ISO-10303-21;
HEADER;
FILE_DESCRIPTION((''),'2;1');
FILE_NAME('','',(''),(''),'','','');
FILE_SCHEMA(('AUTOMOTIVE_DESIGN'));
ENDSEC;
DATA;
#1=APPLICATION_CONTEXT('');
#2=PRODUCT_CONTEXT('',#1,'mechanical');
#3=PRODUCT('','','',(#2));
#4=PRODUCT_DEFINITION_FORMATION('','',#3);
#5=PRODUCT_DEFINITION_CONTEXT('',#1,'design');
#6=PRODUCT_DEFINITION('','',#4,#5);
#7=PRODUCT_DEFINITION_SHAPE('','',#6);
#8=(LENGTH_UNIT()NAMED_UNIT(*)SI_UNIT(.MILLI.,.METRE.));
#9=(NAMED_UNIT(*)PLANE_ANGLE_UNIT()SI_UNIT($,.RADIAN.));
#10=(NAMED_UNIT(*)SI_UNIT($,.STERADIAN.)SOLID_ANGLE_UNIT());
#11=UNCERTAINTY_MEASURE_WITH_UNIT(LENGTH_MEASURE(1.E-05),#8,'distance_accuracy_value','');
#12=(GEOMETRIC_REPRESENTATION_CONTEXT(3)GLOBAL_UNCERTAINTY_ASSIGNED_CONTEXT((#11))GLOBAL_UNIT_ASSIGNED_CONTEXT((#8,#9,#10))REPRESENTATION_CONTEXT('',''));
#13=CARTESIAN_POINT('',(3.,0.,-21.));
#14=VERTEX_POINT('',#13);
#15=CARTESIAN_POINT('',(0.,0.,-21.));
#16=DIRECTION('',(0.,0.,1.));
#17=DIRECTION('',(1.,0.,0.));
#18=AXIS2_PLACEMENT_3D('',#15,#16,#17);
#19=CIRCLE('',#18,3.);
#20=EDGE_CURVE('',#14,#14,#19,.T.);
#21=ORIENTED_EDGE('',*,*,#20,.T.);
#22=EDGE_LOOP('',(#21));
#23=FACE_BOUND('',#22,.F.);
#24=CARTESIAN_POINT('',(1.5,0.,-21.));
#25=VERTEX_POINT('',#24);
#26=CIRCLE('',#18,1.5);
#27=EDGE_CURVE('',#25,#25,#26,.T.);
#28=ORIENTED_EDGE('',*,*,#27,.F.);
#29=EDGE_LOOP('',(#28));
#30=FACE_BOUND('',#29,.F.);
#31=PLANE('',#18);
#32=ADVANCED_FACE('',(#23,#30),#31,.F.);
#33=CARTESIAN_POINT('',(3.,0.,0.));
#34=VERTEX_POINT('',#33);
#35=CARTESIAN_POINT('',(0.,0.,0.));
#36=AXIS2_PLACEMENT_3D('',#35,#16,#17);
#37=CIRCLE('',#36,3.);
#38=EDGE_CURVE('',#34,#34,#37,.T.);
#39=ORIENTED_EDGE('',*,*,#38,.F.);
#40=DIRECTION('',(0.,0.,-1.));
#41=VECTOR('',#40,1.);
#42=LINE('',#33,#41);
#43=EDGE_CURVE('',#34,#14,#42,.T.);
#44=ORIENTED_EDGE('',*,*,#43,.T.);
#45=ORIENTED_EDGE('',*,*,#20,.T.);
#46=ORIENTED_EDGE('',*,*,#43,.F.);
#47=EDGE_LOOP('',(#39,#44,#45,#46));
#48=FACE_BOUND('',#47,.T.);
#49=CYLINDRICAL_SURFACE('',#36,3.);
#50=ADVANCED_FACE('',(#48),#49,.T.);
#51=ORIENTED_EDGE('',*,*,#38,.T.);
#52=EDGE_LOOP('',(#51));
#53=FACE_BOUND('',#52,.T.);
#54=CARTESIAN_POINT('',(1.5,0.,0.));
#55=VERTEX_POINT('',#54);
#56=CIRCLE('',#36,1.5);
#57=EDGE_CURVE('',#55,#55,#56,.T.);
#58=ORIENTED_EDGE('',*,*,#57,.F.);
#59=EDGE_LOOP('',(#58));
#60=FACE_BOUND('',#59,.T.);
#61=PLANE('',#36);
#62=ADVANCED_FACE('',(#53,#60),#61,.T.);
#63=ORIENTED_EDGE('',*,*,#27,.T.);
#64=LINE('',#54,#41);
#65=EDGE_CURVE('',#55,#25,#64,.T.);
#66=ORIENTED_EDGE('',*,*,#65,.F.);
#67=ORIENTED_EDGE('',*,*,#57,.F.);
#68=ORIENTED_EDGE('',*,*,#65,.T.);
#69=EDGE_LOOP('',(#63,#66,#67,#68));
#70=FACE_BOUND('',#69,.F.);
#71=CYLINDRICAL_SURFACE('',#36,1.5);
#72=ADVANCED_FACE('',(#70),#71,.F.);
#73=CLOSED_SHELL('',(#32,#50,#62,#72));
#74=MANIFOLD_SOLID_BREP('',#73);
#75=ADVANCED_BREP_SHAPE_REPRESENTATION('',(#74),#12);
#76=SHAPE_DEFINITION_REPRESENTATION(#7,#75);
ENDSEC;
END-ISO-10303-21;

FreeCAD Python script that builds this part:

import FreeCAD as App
import Part
import Sketcher
from FreeCAD import Vector

doc = App.newDocument("Part")
body = doc.addObject("PartDesign::Body", "Body")

# Sketch on XY plane
sketch1 = doc.addObject("Sketcher::SketchObject", "Sketch")
body.addObject(sketch1)
sketch1.AttachmentSupport = (doc.XY_Plane, [""])
sketch1.MapMode = "FlatFace"
sketch1.addGeometry([
    Part.Circle(Vector(0, 0, 0), Vector(0, 0, 1), 3),
    Part.Circle(Vector(0, 0, 0), Vector(0, 0, 1), 1.5),
], False)
sketch1.addConstraint([
    Sketcher.Constraint("Coincident", 0, 3, -1, 1),
    Sketcher.Constraint("Coincident", 1, 3, -1, 1),
    Sketcher.Constraint("Diameter", 0, 6.0),
    Sketcher.Constraint("Diameter", 1, 3.0),
])
pad1 = doc.addObject("PartDesign::Pad", "Pad")
body.addObject(pad1)
pad1.Profile = sketch1
pad1.Length = 21
pad1.Reversed = True

doc.recompute()
